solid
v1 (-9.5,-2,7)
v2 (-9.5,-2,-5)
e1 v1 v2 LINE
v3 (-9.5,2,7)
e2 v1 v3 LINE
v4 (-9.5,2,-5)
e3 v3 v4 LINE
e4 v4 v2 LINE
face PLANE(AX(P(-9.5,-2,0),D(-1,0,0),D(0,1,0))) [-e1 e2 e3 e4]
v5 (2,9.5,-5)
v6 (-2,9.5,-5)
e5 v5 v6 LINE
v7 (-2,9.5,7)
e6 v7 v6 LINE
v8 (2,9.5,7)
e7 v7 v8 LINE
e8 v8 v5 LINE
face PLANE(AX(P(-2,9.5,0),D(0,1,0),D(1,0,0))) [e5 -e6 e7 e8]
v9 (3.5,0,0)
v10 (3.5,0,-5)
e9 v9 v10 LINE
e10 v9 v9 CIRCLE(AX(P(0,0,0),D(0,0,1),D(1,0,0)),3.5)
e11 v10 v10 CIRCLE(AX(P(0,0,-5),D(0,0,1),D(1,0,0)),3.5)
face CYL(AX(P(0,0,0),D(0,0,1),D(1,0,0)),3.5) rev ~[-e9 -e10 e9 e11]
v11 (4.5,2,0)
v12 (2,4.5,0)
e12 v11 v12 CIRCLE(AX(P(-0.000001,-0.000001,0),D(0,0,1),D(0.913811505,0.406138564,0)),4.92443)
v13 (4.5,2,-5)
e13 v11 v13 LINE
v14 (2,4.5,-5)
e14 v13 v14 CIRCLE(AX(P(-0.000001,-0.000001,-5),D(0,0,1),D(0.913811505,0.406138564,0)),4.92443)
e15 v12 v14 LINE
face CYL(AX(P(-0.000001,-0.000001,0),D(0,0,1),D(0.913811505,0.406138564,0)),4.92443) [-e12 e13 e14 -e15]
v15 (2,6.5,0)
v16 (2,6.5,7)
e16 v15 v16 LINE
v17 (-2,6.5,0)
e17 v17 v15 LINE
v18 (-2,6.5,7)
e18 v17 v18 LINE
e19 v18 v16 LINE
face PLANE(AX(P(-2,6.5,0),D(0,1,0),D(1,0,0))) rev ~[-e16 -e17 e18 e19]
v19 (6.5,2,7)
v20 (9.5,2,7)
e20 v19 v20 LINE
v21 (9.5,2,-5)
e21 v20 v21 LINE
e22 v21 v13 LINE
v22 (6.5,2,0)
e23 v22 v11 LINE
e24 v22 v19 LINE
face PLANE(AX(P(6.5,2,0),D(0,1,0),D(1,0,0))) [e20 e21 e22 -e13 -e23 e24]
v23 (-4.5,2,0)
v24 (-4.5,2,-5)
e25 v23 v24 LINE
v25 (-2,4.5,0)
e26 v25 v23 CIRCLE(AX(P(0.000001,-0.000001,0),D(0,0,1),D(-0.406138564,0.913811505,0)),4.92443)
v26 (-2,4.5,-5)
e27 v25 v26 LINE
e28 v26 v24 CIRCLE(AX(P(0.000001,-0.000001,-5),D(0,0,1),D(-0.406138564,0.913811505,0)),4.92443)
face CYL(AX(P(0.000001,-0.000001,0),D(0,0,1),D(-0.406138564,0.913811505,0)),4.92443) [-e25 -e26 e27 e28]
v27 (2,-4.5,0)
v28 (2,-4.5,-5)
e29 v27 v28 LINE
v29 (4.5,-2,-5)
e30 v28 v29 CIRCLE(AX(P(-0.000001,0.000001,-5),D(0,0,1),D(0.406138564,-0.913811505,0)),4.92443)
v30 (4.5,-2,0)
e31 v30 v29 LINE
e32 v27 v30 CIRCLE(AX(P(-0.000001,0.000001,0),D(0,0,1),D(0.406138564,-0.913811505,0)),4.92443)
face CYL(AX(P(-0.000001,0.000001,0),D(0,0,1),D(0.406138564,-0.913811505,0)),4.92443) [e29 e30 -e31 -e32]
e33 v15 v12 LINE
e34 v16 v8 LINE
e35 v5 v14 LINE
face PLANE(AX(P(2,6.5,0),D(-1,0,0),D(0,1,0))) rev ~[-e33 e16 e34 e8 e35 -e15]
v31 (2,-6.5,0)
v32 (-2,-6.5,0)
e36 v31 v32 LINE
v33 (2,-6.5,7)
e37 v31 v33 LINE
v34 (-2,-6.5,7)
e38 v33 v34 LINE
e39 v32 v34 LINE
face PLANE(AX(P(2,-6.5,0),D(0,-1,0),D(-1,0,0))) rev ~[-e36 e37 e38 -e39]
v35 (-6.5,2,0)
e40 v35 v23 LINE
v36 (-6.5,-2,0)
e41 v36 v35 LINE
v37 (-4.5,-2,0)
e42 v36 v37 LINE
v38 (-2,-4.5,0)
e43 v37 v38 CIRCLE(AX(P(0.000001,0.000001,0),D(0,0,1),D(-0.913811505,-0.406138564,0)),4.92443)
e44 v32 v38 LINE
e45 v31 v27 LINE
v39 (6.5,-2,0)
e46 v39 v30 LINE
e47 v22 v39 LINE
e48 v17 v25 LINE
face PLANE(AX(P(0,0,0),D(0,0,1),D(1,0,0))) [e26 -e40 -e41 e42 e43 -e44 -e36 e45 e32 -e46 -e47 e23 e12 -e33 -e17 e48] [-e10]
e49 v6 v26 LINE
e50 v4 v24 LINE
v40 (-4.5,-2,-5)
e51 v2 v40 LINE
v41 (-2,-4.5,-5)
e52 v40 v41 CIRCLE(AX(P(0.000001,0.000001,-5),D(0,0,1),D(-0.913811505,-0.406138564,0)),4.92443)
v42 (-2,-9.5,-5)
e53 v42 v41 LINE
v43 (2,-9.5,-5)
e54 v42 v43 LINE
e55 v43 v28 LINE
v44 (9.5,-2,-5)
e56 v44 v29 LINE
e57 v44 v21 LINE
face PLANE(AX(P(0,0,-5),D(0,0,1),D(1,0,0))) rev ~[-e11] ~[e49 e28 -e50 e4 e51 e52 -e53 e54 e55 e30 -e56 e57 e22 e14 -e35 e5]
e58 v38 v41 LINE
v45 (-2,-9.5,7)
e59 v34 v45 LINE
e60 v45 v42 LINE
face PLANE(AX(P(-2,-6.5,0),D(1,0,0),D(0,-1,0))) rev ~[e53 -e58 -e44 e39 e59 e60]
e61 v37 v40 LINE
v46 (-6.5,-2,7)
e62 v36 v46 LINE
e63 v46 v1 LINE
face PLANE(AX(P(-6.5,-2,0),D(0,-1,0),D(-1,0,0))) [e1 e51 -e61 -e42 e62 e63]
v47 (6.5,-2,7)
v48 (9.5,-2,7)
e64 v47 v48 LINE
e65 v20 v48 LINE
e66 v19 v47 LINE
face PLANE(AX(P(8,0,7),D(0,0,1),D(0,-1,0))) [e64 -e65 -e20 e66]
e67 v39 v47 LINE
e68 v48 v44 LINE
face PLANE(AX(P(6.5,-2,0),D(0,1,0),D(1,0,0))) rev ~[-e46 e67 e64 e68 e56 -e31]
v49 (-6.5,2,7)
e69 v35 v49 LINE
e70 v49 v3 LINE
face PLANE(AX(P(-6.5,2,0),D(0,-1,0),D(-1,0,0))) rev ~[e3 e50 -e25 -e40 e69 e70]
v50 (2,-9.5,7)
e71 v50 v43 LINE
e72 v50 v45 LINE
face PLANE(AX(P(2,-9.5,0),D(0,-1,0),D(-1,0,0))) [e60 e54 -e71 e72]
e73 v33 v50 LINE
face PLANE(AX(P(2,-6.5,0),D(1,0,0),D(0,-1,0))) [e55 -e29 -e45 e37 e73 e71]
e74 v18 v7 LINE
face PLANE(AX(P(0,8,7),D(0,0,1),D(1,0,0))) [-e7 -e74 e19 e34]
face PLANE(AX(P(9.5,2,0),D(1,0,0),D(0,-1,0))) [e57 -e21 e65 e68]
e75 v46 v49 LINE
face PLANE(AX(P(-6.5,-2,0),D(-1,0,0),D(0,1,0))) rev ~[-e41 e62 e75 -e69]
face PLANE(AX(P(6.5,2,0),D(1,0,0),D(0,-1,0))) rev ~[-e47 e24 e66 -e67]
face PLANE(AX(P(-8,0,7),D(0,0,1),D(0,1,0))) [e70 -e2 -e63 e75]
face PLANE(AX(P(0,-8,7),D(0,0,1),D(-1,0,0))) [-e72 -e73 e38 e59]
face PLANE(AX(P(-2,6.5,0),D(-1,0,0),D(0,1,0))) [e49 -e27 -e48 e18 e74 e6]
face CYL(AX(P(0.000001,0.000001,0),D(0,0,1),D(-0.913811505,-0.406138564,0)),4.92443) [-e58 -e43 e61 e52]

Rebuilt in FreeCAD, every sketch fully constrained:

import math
import FreeCAD as App
import Part
import Sketcher
from FreeCAD import Vector
Q = App.Units.Quantity

doc = App.newDocument("Part")
body = doc.addObject("PartDesign::Body", "Body")

# Sketch on XY plane
sketch1 = body.newObject("Sketcher::SketchObject", "Sketch")
sketch1.AttachmentSupport = (doc.getObject("XY_Plane"), [""])
sketch1.MapMode = "FlatFace"
sketch1.addGeometry([
    Part.LineSegment(Vector(-9.5, 2, 0), Vector(-9.5, -2, 0)),  # 0
    Part.LineSegment(Vector(-9.5, -2, 0), Vector(-4.5, -2, 0)),  # 1
    Part.ArcOfCircle(Part.Circle(Vector(0.000001, 0.000001, 0), Vector(0, 0, 1), 4.92443), math.radians(-156.037505), math.radians(-113.962495)),  # 2
    Part.LineSegment(Vector(-2, -4.5, 0), Vector(-2, -9.5, 0)),  # 3
    Part.LineSegment(Vector(-2, -9.5, 0), Vector(2, -9.5, 0)),  # 4
    Part.LineSegment(Vector(2, -9.5, 0), Vector(2, -4.5, 0)),  # 5
    Part.ArcOfCircle(Part.Circle(Vector(-0.000001, 0.000001, 0), Vector(0, 0, 1), 4.92443), math.radians(-66.037505), math.radians(-23.962495)),  # 6
    Part.LineSegment(Vector(4.5, -2, 0), Vector(9.5, -2, 0)),  # 7
    Part.LineSegment(Vector(9.5, -2, 0), Vector(9.5, 2, 0)),  # 8
    Part.LineSegment(Vector(9.5, 2, 0), Vector(4.5, 2, 0)),  # 9
    Part.ArcOfCircle(Part.Circle(Vector(-0.000001, -0.000001, 0), Vector(0, 0, 1), 4.92443), math.radians(23.962495), math.radians(66.037505)),  # 10
    Part.LineSegment(Vector(2, 4.5, 0), Vector(2, 9.5, 0)),  # 11
    Part.LineSegment(Vector(2, 9.5, 0), Vector(-2, 9.5, 0)),  # 12
    Part.LineSegment(Vector(-2, 9.5, 0), Vector(-2, 4.5, 0)),  # 13
    Part.ArcOfCircle(Part.Circle(Vector(0.000001, -0.000001, 0), Vector(0, 0, 1), 4.92443), math.radians(113.962495), math.radians(156.037505)),  # 14
    Part.LineSegment(Vector(-4.5, 2, 0), Vector(-9.5, 2, 0)),  # 15
    Part.Circle(Vector(0, 0, 0), Vector(0, 0, 1), 3.5),  # 16
], False)
sketch1.addConstraint([
    Sketcher.Constraint("Coincident", 0, 2, 1, 1),
    Sketcher.Constraint("Coincident", 1, 2, 2, 1),
    Sketcher.Constraint("Coincident", 2, 2, 3, 1),
    Sketcher.Constraint("Coincident", 3, 2, 4, 1),
    Sketcher.Constraint("Coincident", 4, 2, 5, 1),
    Sketcher.Constraint("Coincident", 5, 2, 6, 1),
    Sketcher.Constraint("Coincident", 6, 2, 7, 1),
    Sketcher.Constraint("Coincident", 7, 2, 8, 1),
    Sketcher.Constraint("Coincident", 8, 2, 9, 1),
    Sketcher.Constraint("Coincident", 9, 2, 10, 1),
    Sketcher.Constraint("Coincident", 10, 2, 11, 1),
    Sketcher.Constraint("Coincident", 11, 2, 12, 1),
    Sketcher.Constraint("Coincident", 12, 2, 13, 1),
    Sketcher.Constraint("Coincident", 13, 2, 14, 1),
    Sketcher.Constraint("Coincident", 14, 2, 15, 1),
    Sketcher.Constraint("Coincident", 15, 2, 0, 1),
    Sketcher.Constraint("Vertical", 0),
    Sketcher.Constraint("Horizontal", 1),
    Sketcher.Constraint("Vertical", 3),
    Sketcher.Constraint("Horizontal", 4),
    Sketcher.Constraint("Vertical", 5),
    Sketcher.Constraint("Horizontal", 7),
    Sketcher.Constraint("Vertical", 8),
    Sketcher.Constraint("Horizontal", 9),
    Sketcher.Constraint("Vertical", 11),
    Sketcher.Constraint("Horizontal", 12),
    Sketcher.Constraint("Vertical", 13),
    Sketcher.Constraint("Horizontal", 15),
    Sketcher.Constraint("Coincident", 2, 3, -1, 1),
    Sketcher.Constraint("Coincident", 6, 3, -1, 1),
    Sketcher.Constraint("Coincident", 10, 3, -1, 1),
    Sketcher.Constraint("Coincident", 14, 3, -1, 1),
    Sketcher.Constraint("Coincident", 16, 3, -1, 1),
    Sketcher.Constraint("Equal", 2, 6),
    Sketcher.Constraint("Equal", 6, 10),
    Sketcher.Constraint("Equal", 10, 14),
    Sketcher.Constraint("Symmetric", 0, 2, 8, 2, -1, 1),
    Sketcher.Constraint("Symmetric", 3, 2, 11, 2, -1, 1),
    Sketcher.Constraint("Horizontal", 2, 2, 5, 2),
    Sketcher.Constraint("Horizontal", 1, 2, 6, 2),
    Sketcher.Constraint("Horizontal", 10, 2, 13, 2),
    Sketcher.Constraint("Horizontal", 9, 2, 14, 2),
    Sketcher.Constraint("Equal", 12, 0),
    Sketcher.Constraint("Equal", 15, 3),
    Sketcher.Constraint("Diameter", 16, Q("7 mm")),
    Sketcher.Constraint("DistanceX", 1, 1, 1, 2, Q("5 mm")),
    Sketcher.Constraint("DistanceX", 4, 1, 4, 2, Q("4 mm")),
    Sketcher.Constraint("DistanceX", 0, 2, -1, 1, Q("9.5 mm")),
])
pad1 = body.newObject("PartDesign::Pad", "Pad")
pad1.Profile = sketch1
pad1.Length = 5
pad1.Reversed = True

# Sketch on XY plane
sketch2 = body.newObject("Sketcher::SketchObject", "Sketch001")
sketch2.AttachmentSupport = (doc.getObject("XY_Plane"), [""])
sketch2.MapMode = "FlatFace"
sketch2.addGeometry([
    Part.LineSegment(Vector(-2, 9.5, 0), Vector(-2, 6.5, 0)),
    Part.LineSegment(Vector(-2, 6.5, 0), Vector(2, 6.5, 0)),
    Part.LineSegment(Vector(2, 6.5, 0), Vector(2, 9.5, 0)),
    Part.LineSegment(Vector(2, 9.5, 0), Vector(-2, 9.5, 0)),
], False)
sketch2.addConstraint([
    Sketcher.Constraint("Coincident", 0, 2, 1, 1),
    Sketcher.Constraint("Coincident", 1, 2, 2, 1),
    Sketcher.Constraint("Coincident", 2, 2, 3, 1),
    Sketcher.Constraint("Coincident", 3, 2, 0, 1),
    Sketcher.Constraint("Vertical", 0),
    Sketcher.Constraint("Horizontal", 1),
    Sketcher.Constraint("Vertical", 2),
    Sketcher.Constraint("Horizontal", 3),
    Sketcher.Constraint("DistanceX", 1, 1, 1, 2, Q("4 mm")),
    Sketcher.Constraint("DistanceY", 0, 2, 0, 1, Q("3 mm")),
    Sketcher.Constraint("DistanceX", 0, 2, -1, 1, Q("2 mm")),
    Sketcher.Constraint("DistanceY", -1, 1, 0, 2, Q("6.5 mm")),
])
pad2 = body.newObject("PartDesign::Pad", "Pad001")
pad2.Profile = sketch2
pad2.Length = 7
doc.recompute()

polarpattern = body.newObject("PartDesign::PolarPattern", "PolarPattern")
polarpattern.Originals = [pad2]
polarpattern.Axis = (doc.getObject("Z_Axis"), [""])
polarpattern.Angle = 360
polarpattern.Occurrences = 4
body.Tip = polarpattern

doc.recompute()
